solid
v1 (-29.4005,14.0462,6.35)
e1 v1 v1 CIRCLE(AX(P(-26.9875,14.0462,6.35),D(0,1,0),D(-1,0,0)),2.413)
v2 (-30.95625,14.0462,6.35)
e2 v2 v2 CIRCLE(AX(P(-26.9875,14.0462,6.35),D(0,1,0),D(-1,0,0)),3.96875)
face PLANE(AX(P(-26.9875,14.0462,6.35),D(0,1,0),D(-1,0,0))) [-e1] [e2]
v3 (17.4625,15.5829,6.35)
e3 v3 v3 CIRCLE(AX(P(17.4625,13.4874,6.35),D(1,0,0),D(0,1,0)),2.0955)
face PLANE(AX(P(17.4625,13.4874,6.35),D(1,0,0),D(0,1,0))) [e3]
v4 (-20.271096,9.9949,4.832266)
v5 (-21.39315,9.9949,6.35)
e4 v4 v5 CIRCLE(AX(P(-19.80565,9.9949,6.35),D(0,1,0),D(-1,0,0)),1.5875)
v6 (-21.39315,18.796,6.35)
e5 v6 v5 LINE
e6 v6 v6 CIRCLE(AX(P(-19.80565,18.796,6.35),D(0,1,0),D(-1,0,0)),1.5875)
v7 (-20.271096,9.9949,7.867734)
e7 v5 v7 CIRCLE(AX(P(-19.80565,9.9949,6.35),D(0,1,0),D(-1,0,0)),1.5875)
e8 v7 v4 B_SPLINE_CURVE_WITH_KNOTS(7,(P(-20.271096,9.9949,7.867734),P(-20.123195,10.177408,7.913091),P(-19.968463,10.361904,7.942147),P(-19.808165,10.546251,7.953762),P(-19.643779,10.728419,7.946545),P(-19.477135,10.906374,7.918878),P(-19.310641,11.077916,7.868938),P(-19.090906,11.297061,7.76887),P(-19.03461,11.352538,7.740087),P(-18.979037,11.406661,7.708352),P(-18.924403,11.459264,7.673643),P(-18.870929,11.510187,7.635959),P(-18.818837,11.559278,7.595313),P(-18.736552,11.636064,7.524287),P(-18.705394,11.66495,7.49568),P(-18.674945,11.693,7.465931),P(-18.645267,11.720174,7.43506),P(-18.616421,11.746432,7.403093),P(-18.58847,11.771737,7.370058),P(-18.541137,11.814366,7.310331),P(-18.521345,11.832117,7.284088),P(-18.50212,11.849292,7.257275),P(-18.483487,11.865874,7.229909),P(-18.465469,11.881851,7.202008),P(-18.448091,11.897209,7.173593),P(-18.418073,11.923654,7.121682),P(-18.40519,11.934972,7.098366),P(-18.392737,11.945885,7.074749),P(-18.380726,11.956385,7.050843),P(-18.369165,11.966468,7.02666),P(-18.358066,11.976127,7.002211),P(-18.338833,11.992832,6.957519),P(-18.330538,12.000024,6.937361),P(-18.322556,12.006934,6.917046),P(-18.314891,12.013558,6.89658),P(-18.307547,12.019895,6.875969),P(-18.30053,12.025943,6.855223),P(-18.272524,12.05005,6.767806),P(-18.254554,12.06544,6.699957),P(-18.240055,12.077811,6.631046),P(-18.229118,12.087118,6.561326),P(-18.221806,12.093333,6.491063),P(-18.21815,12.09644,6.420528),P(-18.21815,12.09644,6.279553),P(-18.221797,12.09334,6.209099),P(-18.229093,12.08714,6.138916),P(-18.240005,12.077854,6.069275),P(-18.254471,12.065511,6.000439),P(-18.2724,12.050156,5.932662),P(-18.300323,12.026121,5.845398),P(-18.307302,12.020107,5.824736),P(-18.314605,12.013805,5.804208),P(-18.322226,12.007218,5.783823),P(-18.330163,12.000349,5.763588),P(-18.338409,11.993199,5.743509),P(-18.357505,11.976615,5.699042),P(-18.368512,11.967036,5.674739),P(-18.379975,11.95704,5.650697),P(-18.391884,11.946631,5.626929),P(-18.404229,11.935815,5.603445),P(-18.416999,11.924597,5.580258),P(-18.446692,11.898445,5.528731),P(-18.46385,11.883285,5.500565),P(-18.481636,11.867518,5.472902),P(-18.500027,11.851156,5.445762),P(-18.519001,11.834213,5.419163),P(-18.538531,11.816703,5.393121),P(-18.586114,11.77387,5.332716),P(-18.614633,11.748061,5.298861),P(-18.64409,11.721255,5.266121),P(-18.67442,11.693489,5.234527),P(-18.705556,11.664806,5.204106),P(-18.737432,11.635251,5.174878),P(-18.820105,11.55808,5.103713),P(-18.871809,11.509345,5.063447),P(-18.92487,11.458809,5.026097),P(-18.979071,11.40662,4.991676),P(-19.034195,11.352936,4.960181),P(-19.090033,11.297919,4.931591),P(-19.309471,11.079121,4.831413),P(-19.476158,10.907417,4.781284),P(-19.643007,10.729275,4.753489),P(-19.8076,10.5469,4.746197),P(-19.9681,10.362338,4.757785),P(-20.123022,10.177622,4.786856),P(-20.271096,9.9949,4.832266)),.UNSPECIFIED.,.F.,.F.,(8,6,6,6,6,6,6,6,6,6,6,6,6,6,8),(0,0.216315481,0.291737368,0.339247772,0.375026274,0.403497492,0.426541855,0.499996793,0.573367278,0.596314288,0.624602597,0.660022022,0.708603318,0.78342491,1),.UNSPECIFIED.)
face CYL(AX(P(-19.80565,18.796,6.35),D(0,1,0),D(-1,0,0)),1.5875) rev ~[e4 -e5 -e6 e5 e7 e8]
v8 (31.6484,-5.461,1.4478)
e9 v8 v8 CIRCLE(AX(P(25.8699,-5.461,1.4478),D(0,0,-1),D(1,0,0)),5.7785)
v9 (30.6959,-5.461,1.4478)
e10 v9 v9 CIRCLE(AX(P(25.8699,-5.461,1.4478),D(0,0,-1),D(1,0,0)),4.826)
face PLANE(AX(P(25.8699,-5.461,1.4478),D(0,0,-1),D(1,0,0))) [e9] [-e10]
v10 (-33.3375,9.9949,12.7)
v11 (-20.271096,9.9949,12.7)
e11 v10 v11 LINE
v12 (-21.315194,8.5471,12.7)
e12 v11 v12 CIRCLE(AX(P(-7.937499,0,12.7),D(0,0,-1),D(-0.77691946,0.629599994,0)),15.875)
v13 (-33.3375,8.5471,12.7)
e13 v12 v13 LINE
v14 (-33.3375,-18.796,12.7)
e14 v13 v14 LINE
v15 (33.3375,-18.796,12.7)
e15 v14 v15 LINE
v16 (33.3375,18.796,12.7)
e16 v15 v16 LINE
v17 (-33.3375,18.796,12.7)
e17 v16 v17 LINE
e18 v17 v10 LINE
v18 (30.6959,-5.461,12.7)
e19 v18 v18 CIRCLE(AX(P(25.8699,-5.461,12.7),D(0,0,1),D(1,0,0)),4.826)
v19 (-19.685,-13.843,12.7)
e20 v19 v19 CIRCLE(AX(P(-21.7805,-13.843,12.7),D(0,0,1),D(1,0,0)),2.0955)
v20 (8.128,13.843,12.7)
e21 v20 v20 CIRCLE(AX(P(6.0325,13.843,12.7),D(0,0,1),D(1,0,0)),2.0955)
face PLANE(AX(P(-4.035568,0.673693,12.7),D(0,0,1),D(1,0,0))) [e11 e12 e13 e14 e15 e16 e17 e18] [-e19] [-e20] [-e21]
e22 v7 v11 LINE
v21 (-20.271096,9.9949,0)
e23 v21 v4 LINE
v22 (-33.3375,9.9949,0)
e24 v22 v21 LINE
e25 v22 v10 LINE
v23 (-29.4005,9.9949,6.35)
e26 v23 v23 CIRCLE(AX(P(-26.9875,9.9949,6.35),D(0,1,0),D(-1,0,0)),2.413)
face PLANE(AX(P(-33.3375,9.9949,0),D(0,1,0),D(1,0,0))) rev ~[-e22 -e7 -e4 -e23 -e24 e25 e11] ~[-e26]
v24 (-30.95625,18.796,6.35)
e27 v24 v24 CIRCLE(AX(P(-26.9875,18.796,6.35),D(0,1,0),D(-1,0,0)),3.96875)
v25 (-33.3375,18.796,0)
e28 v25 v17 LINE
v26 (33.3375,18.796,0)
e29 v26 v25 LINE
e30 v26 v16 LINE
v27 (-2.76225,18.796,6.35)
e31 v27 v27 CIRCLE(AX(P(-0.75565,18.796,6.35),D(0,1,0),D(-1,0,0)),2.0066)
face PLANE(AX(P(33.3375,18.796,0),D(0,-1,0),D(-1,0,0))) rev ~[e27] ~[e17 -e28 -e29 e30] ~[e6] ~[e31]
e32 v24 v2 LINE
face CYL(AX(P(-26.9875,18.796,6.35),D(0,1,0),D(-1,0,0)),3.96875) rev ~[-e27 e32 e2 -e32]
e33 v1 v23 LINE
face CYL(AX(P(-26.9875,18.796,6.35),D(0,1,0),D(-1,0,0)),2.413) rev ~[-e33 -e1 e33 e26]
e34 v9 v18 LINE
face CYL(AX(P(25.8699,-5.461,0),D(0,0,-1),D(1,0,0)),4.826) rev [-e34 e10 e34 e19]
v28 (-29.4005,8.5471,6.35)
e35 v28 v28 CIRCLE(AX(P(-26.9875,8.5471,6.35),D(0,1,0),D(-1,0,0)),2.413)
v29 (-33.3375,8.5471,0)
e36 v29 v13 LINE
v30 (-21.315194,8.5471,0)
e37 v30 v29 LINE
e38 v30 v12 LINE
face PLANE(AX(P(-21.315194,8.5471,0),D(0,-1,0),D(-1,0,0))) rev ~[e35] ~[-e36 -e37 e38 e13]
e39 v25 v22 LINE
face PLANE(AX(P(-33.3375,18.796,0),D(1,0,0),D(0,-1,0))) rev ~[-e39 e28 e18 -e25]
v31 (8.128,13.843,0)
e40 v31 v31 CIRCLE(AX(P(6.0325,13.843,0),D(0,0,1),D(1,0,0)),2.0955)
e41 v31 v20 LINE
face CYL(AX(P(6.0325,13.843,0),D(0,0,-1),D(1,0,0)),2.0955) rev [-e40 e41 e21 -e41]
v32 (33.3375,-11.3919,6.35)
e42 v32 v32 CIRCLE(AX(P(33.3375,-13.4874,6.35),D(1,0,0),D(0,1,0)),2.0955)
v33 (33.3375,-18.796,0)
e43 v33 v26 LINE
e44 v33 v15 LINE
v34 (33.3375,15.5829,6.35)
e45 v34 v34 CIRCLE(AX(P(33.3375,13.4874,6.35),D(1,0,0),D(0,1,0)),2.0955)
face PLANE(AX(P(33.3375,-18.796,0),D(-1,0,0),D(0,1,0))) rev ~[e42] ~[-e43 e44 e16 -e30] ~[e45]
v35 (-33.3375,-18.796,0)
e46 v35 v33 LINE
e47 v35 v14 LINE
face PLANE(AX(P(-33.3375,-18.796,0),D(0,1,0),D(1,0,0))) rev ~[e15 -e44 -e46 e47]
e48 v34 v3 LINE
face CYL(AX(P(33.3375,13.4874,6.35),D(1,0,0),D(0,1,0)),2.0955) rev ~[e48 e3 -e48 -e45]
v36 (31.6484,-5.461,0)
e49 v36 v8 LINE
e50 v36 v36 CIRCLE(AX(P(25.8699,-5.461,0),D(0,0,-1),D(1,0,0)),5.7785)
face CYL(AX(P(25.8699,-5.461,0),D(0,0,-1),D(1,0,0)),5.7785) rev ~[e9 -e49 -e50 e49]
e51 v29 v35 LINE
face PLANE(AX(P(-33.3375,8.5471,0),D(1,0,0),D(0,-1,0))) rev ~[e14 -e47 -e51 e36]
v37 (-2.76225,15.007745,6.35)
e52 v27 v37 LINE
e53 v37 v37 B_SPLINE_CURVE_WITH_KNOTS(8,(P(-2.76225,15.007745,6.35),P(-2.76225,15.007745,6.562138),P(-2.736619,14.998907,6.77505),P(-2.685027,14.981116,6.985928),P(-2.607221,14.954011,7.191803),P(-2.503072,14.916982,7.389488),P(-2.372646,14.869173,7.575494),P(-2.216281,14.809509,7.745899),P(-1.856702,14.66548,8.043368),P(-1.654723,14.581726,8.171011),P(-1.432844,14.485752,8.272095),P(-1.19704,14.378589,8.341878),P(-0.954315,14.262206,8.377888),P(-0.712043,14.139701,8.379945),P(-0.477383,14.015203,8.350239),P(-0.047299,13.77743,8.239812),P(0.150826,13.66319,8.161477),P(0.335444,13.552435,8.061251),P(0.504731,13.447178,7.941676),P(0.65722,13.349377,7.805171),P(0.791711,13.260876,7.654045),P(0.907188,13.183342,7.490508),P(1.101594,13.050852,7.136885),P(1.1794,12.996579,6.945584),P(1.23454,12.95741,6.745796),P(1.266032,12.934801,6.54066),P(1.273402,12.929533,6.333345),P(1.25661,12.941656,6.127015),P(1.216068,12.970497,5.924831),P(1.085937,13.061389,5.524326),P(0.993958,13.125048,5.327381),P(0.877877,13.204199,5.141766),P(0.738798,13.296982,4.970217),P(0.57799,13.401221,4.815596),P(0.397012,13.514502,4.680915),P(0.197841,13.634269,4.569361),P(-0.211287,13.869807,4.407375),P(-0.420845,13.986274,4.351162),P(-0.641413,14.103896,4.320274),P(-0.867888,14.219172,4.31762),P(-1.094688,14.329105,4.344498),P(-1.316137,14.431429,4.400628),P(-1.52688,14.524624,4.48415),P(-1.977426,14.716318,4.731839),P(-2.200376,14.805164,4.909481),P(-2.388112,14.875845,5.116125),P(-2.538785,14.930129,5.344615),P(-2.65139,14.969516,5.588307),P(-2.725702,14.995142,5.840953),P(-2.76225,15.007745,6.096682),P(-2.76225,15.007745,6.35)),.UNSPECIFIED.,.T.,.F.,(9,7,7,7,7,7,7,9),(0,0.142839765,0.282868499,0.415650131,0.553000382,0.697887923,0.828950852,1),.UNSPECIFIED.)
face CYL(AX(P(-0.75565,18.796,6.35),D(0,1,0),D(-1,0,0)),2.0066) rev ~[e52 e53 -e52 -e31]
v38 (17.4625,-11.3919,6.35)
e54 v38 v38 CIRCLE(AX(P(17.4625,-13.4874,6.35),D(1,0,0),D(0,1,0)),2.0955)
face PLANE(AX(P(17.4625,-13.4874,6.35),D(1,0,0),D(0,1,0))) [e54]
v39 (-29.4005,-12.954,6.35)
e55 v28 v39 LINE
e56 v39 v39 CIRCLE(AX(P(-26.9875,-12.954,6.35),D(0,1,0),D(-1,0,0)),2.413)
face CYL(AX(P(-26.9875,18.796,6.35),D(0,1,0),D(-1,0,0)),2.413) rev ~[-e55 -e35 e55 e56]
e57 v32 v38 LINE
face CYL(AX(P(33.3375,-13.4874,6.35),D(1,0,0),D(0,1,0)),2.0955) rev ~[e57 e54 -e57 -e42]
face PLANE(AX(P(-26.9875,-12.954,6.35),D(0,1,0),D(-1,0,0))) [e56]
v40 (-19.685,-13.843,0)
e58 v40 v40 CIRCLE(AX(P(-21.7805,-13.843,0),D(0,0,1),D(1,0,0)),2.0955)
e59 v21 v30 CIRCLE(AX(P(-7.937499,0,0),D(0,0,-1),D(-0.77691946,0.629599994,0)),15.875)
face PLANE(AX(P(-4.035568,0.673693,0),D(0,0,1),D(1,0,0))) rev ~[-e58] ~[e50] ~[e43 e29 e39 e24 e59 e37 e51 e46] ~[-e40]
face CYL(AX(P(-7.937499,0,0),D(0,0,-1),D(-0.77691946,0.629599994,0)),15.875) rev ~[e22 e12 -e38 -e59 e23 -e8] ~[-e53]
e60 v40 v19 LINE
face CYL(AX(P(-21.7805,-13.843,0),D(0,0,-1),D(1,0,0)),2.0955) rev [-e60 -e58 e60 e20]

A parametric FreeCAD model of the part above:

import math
import FreeCAD as App
import Part
import Sketcher
Q = App.Units.Quantity

doc = App.newDocument("Part")
body = doc.addObject("PartDesign::Body", "Body")

# Sketch on XY plane
sketch1 = body.newObject("Sketcher::SketchObject", "Sketch")
sketch1.AttachmentSupport = (doc.getObject("XY_Plane"), [""])
sketch1.MapMode = "FlatFace"
sketch1.addGeometry(Part.LineSegment(App.Vector(33.3375, -18.796, 0), App.Vector(33.3375, 18.796, 0)), False)
sketch1.addGeometry(Part.LineSegment(App.Vector(33.3375, 18.796, 0), App.Vector(-33.3375, 18.796, 0)), False)
sketch1.addGeometry(Part.LineSegment(App.Vector(-33.3375, 18.796, 0), App.Vector(-33.3375, 9.9949, 0)), False)
sketch1.addGeometry(Part.LineSegment(App.Vector(-33.3375, 9.9949, 0), App.Vector(-20.271096, 9.9949, 0)), False)
sketch1.addGeometry(Part.ArcOfCircle(Part.Circle(App.Vector(-7.937499, 0, 0), App.Vector(0, 0, 1), 15.875), math.radians(147.425214), math.radians(500.979383)), False)
sketch1.addGeometry(Part.LineSegment(App.Vector(-21.315194, 8.5471, 0), App.Vector(-33.3375, 8.5471, 0)), False)
sketch1.addGeometry(Part.LineSegment(App.Vector(-33.3375, 8.5471, 0), App.Vector(-33.3375, -18.796, 0)), False)
sketch1.addGeometry(Part.LineSegment(App.Vector(-33.3375, -18.796, 0), App.Vector(33.3375, -18.796, 0)), False)
sketch1.addGeometry(Part.Circle(App.Vector(-21.7805, -13.843, 0), App.Vector(0, 0, 1), 2.0955), False)
sketch1.addGeometry(Part.Circle(App.Vector(25.8699, -5.461, 0), App.Vector(0, 0, 1), 4.826), False)
sketch1.addGeometry(Part.Circle(App.Vector(6.0325, 13.843, 0), App.Vector(0, 0, 1), 2.0955), False)
sketch1.addConstraint(Sketcher.Constraint("Coincident", 0, 2, 1, 1))
sketch1.addConstraint(Sketcher.Constraint("Coincident", 1, 2, 2, 1))
sketch1.addConstraint(Sketcher.Constraint("Coincident", 2, 2, 3, 1))
sketch1.addConstraint(Sketcher.Constraint("Coincident", 3, 2, 4, 2))
sketch1.addConstraint(Sketcher.Constraint("Coincident", 4, 1, 5, 1))
sketch1.addConstraint(Sketcher.Constraint("Coincident", 5, 2, 6, 1))
sketch1.addConstraint(Sketcher.Constraint("Coincident", 6, 2, 7, 1))
sketch1.addConstraint(Sketcher.Constraint("Coincident", 7, 2, 0, 1))
sketch1.addConstraint(Sketcher.Constraint("Vertical", 0))
sketch1.addConstraint(Sketcher.Constraint("Horizontal", 1))
sketch1.addConstraint(Sketcher.Constraint("Vertical", 2))
sketch1.addConstraint(Sketcher.Constraint("Horizontal", 3))
sketch1.addConstraint(Sketcher.Constraint("Horizontal", 5))
sketch1.addConstraint(Sketcher.Constraint("Vertical", 6))
sketch1.addConstraint(Sketcher.Constraint("Horizontal", 7))
sketch1.addConstraint(Sketcher.Constraint("Equal", 8, 10))
sketch1.addConstraint(Sketcher.Constraint("Symmetric", 0, 2, 6, 2, -1, 1))
sketch1.addConstraint(Sketcher.Constraint("PointOnObject", 4, 3, -1))
sketch1.addConstraint(Sketcher.Constraint("Vertical", 2, 2, 5, 2))
sketch1.addConstraint(Sketcher.Constraint("Diameter", 9, Q("0.38 in")))
sketch1.addConstraint(Sketcher.Constraint("Diameter", 8, Q("0.165 in")))
sketch1.addConstraint(Sketcher.Constraint("Radius", 4, Q("0.625 in")))
sketch1.addConstraint(Sketcher.Constraint("DistanceX", 1, 2, 4, 3, Q("1 in")))
sketch1.addConstraint(Sketcher.Constraint("DistanceY", 0, 1, 0, 2, Q("1.48 in")))
sketch1.addConstraint(Sketcher.Constraint("DistanceX", 1, 2, 1, 1, Q("2.625 in")))
sketch1.addConstraint(Sketcher.Constraint("DistanceY", 8, 3, 9, 3, Q("0.33 in")))
sketch1.addConstraint(Sketcher.Constraint("DistanceX", 4, 3, 10, 3, Q("0.55 in")))
sketch1.addConstraint(Sketcher.Constraint("DistanceY", 9, 3, 10, 3, Q("0.76 in")))
sketch1.addConstraint(Sketcher.Constraint("DistanceX", 8, 3, 0, 2, Q("2.17 in")))
sketch1.addConstraint(Sketcher.Constraint("DistanceY", 2, 2, 2, 1, Q("0.3465 in")))
sketch1.addConstraint(Sketcher.Constraint("DistanceY", 6, 2, 6, 1, Q("1.0765 in")))
sketch1.addConstraint(Sketcher.Constraint("DistanceY", 8, 3, -1, 1, Q("0.545 in")))
sketch1.addConstraint(Sketcher.Constraint("DistanceX", 4, 3, 9, 3, Q("1.331 in")))
pad1 = body.newObject("PartDesign::Pad", "Pad")
pad1.Profile = sketch1
pad1.Length = Q("0.5 in")

# Sketch on YZ plane
sketch2 = body.newObject("Sketcher::SketchObject", "Sketch001")
sketch2.AttachmentSupport = (doc.getObject("YZ_Plane"), [""])
sketch2.MapMode = "FlatFace"
sketch2.AttachmentOffset = App.Placement(App.Vector(0, 0, 1.3125 * 25.4), App.Rotation())
sketch2.addGeometry(Part.Circle(App.Vector(-13.4874, 6.35, 0), App.Vector(0, 0, 1), 2.0955), False)
sketch2.addGeometry(Part.Circle(App.Vector(13.4874, 6.35, 0), App.Vector(0, 0, 1), 2.0955), False)
sketch2.addConstraint(Sketcher.Constraint("Equal", 0, 1))
sketch2.addConstraint(Sketcher.Constraint("Symmetric", 0, 3, 1, 3, -2))
sketch2.addConstraint(Sketcher.Constraint("Diameter", 0, Q("0.165 in")))
sketch2.addConstraint(Sketcher.Constraint("DistanceY", -1, 1, 0, 3, Q("0.25 in")))
sketch2.addConstraint(Sketcher.Constraint("DistanceX", 0, 3, -1, 1, Q("0.531 in")))
pocket1 = body.newObject("PartDesign::Pocket", "Pocket")
pocket1.Profile = sketch2
pocket1.Length = Q("0.625 in")

# Sketch on XY plane
sketch3 = body.newObject("Sketcher::SketchObject", "Sketch002")
sketch3.AttachmentSupport = (doc.getObject("XY_Plane"), [""])
sketch3.MapMode = "FlatFace"
sketch3.addGeometry(Part.Circle(App.Vector(25.8699, -5.461, 0), App.Vector(0, 0, 1), 5.7785), False)
sketch3.addConstraint(Sketcher.Constraint("Diameter", 0, Q("0.455 in")))
sketch3.addConstraint(Sketcher.Constraint("DistanceY", 0, 3, -1, 1, Q("0.215 in")))
sketch3.addConstraint(Sketcher.Constraint("DistanceX", -1, 1, 0, 3, Q("1.0185 in")))
pocket2 = body.newObject("PartDesign::Pocket", "Pocket001")
pocket2.Profile = sketch3
pocket2.Length = Q("0.057 in")
pocket2.Reversed = True

# Sketch on XZ plane
sketch4 = body.newObject("Sketcher::SketchObject", "Sketch003")
sketch4.AttachmentSupport = (doc.getObject("XZ_Plane"), [""])
sketch4.MapMode = "FlatFace"
sketch4.AttachmentOffset = App.Placement(App.Vector(0, 0, -0.74 * 25.4), App.Rotation())
sketch4.addGeometry(Part.Circle(App.Vector(-26.9875, 6.35, 0), App.Vector(0, 0, 1), 2.413), False)
sketch4.addConstraint(Sketcher.Constraint("Diameter", 0, Q("0.19 in")))
sketch4.addConstraint(Sketcher.Constraint("DistanceY", -1, 1, 0, 3, Q("0.25 in")))
sketch4.addConstraint(Sketcher.Constraint("DistanceX", 0, 3, -1, 1, Q("1.0625 in")))
pocket3 = body.newObject("PartDesign::Pocket", "Pocket002")
pocket3.Profile = sketch4
pocket3.Length = Q("1.25 in")
pocket3.Reversed = True

# Sketch on XZ plane
sketch5 = body.newObject("Sketcher::SketchObject", "Sketch004")
sketch5.AttachmentSupport = (doc.getObject("XZ_Plane"), [""])
sketch5.MapMode = "FlatFace"
sketch5.AttachmentOffset = App.Placement(App.Vector(0, 0, -0.74 * 25.4), App.Rotation())
sketch5.addGeometry(Part.Circle(App.Vector(-26.9875, 6.35, 0), App.Vector(0, 0, 1), 3.96875), False)
sketch5.addConstraint(Sketcher.Constraint("Diameter", 0, Q("0.3125 in")))
sketch5.addConstraint(Sketcher.Constraint("DistanceY", -1, 1, 0, 3, Q("0.25 in")))
sketch5.addConstraint(Sketcher.Constraint("DistanceX", 0, 3, -1, 1, Q("1.0625 in")))
pocket4 = body.newObject("PartDesign::Pocket", "Pocket003")
pocket4.Profile = sketch5
pocket4.Length = Q("0.187 in")
pocket4.Reversed = True

# Sketch on XZ plane
sketch6 = body.newObject("Sketcher::SketchObject", "Sketch005")
sketch6.AttachmentSupport = (doc.getObject("XZ_Plane"), [""])
sketch6.MapMode = "FlatFace"
sketch6.AttachmentOffset = App.Placement(App.Vector(0, 0, -0.74 * 25.4), App.Rotation())
sketch6.addGeometry(Part.Circle(App.Vector(-19.80565, 6.35, 0), App.Vector(0, 0, 1), 1.5875), False)
sketch6.addGeometry(Part.Circle(App.Vector(-0.75565, 6.35, 0), App.Vector(0, 0, 1), 2.0066), False)
sketch6.addConstraint(Sketcher.Constraint("Horizontal", 0, 3, 1, 3))
sketch6.addConstraint(Sketcher.Constraint("Diameter", 0, Q("0.125 in")))
sketch6.addConstraint(Sketcher.Constraint("Diameter", 1, Q("0.158 in")))
sketch6.addConstraint(Sketcher.Constraint("DistanceY", -1, 1, 0, 3, Q("0.25 in")))
sketch6.addConstraint(Sketcher.Constraint("DistanceX", 0, 3, 1, 3, Q("0.75 in")))
sketch6.addConstraint(Sketcher.Constraint("DistanceX", 0, 3, -1, 1, Q("19.80565 mm")))
pocket5 = body.newObject("PartDesign::Pocket", "Pocket004")
pocket5.Profile = sketch6
pocket5.Length = Q("0.375 in")
pocket5.Reversed = True

doc.recompute()
